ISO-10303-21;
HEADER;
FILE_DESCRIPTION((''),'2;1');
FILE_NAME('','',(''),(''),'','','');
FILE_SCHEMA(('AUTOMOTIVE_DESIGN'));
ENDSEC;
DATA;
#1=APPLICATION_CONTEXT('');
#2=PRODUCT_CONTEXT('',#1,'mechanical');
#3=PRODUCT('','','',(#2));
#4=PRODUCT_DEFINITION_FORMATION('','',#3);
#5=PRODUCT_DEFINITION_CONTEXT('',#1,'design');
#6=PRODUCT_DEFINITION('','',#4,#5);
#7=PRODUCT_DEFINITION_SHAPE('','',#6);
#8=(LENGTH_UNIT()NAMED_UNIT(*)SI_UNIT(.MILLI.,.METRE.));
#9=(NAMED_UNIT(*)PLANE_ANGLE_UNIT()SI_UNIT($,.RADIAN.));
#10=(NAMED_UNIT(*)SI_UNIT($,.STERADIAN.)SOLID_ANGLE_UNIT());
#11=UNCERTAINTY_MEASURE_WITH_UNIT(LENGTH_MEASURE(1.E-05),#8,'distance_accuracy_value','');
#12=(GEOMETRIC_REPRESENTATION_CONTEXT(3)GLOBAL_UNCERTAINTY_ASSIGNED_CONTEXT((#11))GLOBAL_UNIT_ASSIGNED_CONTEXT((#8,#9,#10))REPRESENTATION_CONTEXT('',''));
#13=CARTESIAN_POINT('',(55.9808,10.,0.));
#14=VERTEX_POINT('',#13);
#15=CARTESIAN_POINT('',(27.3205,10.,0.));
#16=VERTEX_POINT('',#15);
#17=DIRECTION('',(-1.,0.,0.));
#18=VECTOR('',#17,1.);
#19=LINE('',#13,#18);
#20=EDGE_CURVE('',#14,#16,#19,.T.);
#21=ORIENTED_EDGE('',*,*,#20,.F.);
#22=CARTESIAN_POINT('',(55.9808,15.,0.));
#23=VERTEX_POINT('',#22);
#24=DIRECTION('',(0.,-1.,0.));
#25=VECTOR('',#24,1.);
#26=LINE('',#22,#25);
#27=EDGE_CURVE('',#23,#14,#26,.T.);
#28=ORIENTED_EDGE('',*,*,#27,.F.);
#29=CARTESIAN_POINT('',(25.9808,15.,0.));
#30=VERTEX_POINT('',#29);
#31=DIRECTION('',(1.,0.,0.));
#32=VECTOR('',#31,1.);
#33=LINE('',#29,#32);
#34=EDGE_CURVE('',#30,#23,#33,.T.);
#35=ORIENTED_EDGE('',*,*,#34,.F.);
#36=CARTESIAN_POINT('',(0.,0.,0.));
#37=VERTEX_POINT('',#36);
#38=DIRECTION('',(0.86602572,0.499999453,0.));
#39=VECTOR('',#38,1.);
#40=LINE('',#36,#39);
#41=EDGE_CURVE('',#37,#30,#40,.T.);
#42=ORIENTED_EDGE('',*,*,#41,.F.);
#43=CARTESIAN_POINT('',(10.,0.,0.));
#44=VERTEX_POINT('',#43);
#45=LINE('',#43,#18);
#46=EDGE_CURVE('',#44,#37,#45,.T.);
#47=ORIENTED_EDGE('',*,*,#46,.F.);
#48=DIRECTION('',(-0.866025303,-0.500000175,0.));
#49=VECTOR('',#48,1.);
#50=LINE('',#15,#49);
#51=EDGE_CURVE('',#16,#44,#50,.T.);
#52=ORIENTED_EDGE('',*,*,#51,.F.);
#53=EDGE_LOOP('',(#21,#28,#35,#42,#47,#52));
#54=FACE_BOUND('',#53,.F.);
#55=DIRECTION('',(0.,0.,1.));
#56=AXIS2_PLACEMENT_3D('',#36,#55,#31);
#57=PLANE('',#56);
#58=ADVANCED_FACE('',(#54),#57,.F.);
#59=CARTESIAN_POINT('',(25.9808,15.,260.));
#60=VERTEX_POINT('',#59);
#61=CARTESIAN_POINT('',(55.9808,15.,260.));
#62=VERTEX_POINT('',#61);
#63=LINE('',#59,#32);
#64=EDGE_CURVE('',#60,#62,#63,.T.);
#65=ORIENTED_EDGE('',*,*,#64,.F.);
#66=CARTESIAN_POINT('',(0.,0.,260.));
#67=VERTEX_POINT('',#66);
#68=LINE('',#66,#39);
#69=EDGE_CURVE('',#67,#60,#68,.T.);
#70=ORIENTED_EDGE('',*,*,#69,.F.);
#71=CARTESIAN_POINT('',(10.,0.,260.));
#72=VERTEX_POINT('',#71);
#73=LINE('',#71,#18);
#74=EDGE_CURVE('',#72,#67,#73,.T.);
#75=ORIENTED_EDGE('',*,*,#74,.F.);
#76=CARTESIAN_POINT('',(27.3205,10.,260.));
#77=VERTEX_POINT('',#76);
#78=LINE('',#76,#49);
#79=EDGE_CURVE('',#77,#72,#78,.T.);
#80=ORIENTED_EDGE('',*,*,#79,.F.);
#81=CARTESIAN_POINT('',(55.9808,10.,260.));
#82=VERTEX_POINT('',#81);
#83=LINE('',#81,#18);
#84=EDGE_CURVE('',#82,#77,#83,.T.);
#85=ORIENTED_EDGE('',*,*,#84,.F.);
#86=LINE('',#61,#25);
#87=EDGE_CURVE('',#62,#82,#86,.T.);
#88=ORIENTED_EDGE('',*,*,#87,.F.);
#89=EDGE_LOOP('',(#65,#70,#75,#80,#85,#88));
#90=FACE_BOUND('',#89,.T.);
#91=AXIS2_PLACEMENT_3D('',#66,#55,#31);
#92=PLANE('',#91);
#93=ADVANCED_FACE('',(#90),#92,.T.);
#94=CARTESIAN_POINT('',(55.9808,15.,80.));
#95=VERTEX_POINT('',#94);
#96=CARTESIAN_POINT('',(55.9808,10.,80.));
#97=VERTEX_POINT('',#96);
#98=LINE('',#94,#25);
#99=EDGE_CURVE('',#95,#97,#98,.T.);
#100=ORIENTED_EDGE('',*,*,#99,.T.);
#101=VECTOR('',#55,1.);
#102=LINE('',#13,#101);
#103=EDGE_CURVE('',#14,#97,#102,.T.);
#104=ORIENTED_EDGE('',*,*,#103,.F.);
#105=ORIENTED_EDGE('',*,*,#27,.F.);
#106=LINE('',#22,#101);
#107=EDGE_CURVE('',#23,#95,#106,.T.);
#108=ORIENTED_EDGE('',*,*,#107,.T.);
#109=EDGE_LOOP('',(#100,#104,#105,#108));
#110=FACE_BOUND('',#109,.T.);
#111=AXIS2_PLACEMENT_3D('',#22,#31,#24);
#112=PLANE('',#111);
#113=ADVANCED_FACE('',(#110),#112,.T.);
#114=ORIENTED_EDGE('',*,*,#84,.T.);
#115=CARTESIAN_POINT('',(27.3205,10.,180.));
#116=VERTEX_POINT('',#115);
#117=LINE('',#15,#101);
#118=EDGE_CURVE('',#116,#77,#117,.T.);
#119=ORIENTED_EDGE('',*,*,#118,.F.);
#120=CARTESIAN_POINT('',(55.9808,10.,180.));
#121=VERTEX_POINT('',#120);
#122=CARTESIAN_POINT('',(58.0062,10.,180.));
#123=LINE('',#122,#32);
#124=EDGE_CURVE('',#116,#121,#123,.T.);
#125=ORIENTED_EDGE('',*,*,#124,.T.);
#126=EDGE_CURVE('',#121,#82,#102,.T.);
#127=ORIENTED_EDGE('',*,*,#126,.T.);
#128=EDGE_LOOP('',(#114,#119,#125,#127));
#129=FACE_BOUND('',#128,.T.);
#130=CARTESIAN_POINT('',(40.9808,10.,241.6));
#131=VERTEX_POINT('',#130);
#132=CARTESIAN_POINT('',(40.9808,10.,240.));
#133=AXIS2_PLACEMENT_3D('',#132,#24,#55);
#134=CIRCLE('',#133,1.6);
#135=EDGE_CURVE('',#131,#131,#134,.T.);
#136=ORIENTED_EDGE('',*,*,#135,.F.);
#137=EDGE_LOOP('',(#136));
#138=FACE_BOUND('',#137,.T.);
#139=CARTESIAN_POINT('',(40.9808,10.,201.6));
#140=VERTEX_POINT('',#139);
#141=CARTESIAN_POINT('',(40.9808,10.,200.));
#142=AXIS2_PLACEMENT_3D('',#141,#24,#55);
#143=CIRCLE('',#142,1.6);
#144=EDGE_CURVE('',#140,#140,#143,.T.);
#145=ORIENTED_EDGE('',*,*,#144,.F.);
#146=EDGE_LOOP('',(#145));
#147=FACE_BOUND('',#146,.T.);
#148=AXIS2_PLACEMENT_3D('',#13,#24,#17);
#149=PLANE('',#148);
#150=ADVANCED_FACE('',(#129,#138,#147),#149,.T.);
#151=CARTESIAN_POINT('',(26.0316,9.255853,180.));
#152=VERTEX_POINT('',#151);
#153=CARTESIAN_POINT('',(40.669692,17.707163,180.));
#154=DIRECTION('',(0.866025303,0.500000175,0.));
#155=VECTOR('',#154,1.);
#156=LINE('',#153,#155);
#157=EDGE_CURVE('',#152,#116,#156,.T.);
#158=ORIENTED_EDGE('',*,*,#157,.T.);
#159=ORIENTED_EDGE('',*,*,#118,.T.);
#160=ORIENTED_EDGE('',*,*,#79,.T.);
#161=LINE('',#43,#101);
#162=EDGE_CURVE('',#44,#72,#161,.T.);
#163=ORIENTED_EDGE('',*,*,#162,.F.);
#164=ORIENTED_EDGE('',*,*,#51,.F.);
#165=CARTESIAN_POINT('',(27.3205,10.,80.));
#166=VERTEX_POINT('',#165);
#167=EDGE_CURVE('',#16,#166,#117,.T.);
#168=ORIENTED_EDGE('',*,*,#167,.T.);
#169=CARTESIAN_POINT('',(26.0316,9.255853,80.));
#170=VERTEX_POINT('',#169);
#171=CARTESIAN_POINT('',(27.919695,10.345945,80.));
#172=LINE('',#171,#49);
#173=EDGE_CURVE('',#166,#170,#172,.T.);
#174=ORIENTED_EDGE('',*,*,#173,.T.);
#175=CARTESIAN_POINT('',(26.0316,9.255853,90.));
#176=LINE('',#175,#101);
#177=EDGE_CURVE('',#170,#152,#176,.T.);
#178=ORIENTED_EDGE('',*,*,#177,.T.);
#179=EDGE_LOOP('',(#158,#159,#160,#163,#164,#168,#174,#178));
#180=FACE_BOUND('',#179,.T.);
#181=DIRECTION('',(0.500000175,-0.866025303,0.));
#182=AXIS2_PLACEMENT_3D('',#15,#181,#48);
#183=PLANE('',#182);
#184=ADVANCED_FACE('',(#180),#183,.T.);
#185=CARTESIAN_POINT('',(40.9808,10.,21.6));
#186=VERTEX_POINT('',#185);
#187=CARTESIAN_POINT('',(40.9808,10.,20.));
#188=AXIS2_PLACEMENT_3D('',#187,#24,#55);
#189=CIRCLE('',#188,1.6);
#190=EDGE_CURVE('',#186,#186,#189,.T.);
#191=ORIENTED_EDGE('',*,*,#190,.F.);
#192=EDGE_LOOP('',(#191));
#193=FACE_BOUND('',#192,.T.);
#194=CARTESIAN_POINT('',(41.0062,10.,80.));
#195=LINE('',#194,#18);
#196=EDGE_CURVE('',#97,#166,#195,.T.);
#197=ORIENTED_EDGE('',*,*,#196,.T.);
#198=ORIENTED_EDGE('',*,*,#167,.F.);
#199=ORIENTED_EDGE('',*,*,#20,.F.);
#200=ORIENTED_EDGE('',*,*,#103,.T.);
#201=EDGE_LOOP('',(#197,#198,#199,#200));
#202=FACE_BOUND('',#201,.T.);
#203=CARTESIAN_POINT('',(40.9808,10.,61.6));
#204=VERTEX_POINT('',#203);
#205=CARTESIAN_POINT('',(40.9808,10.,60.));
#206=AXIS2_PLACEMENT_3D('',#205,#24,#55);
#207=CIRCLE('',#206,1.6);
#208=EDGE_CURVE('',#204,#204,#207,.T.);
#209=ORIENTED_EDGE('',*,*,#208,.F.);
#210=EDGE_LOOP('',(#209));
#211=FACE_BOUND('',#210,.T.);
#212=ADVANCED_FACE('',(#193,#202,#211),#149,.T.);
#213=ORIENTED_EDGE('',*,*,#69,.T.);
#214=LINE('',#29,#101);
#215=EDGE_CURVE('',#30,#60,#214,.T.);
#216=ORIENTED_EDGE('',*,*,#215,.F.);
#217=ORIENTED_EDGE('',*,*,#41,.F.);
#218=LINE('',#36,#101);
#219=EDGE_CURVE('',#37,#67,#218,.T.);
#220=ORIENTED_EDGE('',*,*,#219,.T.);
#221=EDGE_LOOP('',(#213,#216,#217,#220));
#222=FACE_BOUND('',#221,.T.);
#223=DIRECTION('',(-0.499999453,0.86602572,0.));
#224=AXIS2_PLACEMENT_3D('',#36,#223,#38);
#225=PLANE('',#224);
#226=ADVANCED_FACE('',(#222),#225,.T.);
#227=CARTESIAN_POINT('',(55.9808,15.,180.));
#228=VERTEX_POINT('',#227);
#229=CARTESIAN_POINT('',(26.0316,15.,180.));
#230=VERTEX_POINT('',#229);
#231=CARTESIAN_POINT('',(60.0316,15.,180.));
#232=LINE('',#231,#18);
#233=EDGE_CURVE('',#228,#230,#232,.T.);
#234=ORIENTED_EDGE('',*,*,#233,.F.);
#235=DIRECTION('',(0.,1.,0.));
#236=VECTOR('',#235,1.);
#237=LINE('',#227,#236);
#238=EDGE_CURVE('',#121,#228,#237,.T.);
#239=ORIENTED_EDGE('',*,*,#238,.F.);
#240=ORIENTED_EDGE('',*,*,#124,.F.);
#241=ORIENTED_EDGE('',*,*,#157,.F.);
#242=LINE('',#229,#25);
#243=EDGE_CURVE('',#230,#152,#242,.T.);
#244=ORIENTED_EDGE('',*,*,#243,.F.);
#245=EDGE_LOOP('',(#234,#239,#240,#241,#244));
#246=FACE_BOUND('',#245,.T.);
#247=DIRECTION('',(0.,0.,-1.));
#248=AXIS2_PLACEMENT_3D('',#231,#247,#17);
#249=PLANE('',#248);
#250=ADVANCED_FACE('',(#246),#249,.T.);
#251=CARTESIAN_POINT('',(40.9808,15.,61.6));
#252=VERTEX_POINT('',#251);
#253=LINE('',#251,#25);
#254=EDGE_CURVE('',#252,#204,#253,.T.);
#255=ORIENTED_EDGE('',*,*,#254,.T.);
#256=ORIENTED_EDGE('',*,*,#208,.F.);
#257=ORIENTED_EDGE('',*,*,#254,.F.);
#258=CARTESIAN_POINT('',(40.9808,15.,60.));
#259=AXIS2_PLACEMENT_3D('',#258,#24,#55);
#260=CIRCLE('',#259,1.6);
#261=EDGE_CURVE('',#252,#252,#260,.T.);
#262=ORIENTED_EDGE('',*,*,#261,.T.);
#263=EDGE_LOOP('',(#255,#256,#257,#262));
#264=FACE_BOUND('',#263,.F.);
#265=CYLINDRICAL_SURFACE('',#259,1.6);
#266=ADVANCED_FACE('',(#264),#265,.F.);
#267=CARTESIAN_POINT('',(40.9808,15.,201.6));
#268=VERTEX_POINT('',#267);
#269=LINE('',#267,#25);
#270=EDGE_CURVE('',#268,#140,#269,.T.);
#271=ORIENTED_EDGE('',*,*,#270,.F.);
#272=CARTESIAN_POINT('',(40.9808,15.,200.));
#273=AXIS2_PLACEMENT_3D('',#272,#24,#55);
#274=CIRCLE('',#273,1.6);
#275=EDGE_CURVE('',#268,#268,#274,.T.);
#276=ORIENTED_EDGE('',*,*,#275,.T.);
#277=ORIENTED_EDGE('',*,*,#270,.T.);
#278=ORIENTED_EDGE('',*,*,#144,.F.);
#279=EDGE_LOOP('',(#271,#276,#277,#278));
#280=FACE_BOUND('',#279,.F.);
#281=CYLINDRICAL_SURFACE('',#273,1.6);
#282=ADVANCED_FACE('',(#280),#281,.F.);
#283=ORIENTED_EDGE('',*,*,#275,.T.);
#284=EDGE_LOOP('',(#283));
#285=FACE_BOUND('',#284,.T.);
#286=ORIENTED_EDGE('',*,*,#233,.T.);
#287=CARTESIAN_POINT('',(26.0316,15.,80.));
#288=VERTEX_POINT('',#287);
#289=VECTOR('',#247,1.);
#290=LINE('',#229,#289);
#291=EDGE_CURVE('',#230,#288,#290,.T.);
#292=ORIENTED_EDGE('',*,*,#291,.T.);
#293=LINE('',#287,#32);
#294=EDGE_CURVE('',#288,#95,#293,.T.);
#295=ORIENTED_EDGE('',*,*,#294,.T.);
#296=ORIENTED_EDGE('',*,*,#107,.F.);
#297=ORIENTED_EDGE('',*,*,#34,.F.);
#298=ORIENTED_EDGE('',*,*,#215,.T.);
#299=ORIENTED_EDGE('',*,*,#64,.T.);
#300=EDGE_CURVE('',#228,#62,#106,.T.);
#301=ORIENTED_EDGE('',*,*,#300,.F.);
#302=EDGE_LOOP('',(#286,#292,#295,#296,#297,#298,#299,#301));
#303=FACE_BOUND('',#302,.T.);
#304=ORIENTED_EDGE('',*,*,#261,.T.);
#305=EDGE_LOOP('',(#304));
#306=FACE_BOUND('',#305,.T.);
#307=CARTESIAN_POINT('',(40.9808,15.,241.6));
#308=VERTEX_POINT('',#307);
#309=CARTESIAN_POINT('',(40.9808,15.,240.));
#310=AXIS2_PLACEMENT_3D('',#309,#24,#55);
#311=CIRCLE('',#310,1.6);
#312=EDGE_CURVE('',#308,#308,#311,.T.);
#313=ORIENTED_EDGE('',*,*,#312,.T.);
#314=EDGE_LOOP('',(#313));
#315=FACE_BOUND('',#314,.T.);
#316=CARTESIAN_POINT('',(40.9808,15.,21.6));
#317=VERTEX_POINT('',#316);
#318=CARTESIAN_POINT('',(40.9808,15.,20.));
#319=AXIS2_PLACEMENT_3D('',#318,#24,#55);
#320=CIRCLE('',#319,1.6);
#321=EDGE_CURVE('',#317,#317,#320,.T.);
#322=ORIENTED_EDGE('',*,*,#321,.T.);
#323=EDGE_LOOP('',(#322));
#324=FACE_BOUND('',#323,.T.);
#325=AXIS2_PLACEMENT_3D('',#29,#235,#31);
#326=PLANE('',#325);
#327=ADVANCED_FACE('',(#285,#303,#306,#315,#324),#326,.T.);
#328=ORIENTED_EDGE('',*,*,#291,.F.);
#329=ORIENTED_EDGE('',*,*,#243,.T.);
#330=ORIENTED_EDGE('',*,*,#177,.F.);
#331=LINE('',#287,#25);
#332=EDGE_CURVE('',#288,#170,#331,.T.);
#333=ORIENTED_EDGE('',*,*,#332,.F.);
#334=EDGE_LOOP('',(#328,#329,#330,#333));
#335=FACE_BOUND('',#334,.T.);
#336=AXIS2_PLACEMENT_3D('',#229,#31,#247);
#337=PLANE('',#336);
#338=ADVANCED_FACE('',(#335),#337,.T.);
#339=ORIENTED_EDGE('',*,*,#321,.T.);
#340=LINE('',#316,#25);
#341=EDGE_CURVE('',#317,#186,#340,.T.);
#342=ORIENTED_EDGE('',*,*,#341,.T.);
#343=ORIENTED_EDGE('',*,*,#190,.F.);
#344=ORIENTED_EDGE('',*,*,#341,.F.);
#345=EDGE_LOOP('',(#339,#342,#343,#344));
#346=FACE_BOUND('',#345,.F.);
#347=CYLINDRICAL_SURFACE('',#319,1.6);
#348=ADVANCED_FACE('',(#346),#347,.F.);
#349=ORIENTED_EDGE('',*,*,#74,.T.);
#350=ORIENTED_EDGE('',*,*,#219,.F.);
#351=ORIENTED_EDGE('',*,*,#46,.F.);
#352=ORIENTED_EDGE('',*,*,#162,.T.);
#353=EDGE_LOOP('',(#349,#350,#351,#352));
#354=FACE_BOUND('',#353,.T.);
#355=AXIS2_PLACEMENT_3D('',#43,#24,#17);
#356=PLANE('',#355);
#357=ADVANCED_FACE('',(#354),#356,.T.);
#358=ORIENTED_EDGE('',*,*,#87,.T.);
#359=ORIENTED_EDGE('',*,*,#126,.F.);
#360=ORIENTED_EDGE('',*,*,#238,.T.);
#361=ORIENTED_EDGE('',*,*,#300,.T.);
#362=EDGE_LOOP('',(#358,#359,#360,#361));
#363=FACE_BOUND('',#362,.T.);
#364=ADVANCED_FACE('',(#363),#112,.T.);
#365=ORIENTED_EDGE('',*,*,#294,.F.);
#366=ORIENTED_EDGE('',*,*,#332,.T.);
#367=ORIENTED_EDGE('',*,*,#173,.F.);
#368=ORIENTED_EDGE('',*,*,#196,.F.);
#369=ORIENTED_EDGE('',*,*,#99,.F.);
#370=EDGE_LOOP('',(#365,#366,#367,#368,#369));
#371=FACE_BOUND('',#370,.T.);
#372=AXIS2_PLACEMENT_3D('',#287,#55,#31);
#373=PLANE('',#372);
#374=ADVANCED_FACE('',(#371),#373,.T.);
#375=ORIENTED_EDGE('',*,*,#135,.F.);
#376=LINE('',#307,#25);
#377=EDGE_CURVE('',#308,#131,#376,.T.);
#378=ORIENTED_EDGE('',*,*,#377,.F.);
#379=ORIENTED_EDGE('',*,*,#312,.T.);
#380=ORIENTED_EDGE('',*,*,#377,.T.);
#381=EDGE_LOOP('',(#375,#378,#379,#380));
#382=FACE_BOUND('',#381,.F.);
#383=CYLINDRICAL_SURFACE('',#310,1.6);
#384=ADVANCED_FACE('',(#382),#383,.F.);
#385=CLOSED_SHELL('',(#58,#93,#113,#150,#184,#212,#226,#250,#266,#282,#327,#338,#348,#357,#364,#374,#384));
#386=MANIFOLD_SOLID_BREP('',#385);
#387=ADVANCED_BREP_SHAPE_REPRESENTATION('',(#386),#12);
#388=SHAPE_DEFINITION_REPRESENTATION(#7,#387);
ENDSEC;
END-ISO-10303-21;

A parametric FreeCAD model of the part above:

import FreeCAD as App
import Part
import Sketcher
Q = App.Units.Quantity

doc = App.newDocument("Part")
body = doc.addObject("PartDesign::Body", "Body")

sketch1 = body.newObject("Sketcher::SketchObject", "Sketch")
sketch1.AttachmentSupport = (doc.getObject("XY_Plane"), [""])
sketch1.MapMode = "FlatFace"
sketch1.addGeometry([
    Part.LineSegment(App.Vector(26, 15, 0), App.Vector(0, 0, 0)),
    Part.LineSegment(App.Vector(0, 0, 0), App.Vector(10, 0, 0)),
    Part.LineSegment(App.Vector(10, 0, 0), App.Vector(27, 10, 0)),
    Part.LineSegment(App.Vector(27, 10, 0), App.Vector(56, 10, 0)),
    Part.LineSegment(App.Vector(56, 10, 0), App.Vector(56, 15, 0)),
    Part.LineSegment(App.Vector(56, 15, 0), App.Vector(26, 15, 0)),
], False)
sketch1.addConstraint([
    Sketcher.Constraint("Coincident", 0, 2, 1, 1),
    Sketcher.Constraint("Coincident", 1, 2, 2, 1),
    Sketcher.Constraint("Coincident", 2, 2, 3, 1),
    Sketcher.Constraint("Coincident", 3, 2, 4, 1),
    Sketcher.Constraint("Coincident", 4, 2, 5, 1),
    Sketcher.Constraint("Coincident", 5, 2, 0, 1),
    Sketcher.Constraint("Horizontal", 1),
    Sketcher.Constraint("Horizontal", 3),
    Sketcher.Constraint("Vertical", 4),
    Sketcher.Constraint("Horizontal", 5),
    Sketcher.Constraint("Coincident", 0, 2, -1, 1),
    Sketcher.Constraint("Parallel", 0, 2),
    Sketcher.Constraint("DistanceX", 5, 2, 5, 1, Q("30 mm")),
    Sketcher.Constraint("DistanceY", 4, 1, 4, 2, Q("5 mm")),
    Sketcher.Constraint("Angle", 2, Q("30 deg")),
    Sketcher.Constraint("Distance", 0, Q("30 mm")),
    Sketcher.Constraint("DistanceX", 1, 1, 1, 2, Q("10 mm")),
])
pad1 = body.newObject("PartDesign::Pad", "Pad")
pad1.Profile = sketch1
pad1.Length = 260

sketch2 = body.newObject("Sketcher::SketchObject", "Sketch001")
sketch2.AttachmentSupport = (doc.getObject("XZ_Plane"), [""])
sketch2.MapMode = "FlatFace"
sketch2.AttachmentOffset = App.Placement(App.Vector(0, 0, -15), App.Rotation())
sketch2.addGeometry([
    Part.LineSegment(App.Vector(60, 80, 0), App.Vector(26, 80, 0)),
    Part.LineSegment(App.Vector(26, 80, 0), App.Vector(26, 180, 0)),
    Part.LineSegment(App.Vector(26, 180, 0), App.Vector(60, 180, 0)),
    Part.LineSegment(App.Vector(60, 180, 0), App.Vector(60, 80, 0)),
], False)
sketch2.addConstraint([
    Sketcher.Constraint("Coincident", 0, 2, 1, 1),
    Sketcher.Constraint("Coincident", 1, 2, 2, 1),
    Sketcher.Constraint("Coincident", 2, 2, 3, 1),
    Sketcher.Constraint("Coincident", 3, 2, 0, 1),
    Sketcher.Constraint("Horizontal", 0),
    Sketcher.Constraint("Vertical", 1),
    Sketcher.Constraint("Horizontal", 2),
    Sketcher.Constraint("Vertical", 3),
    Sketcher.Constraint("DistanceX", 0, 2, 0, 1, Q("34 mm")),
    Sketcher.Constraint("DistanceY", -1, 1, 0, 2, Q("80 mm")),
    Sketcher.Constraint("DistanceY", 1, 1, 1, 2, Q("100 mm")),
    Sketcher.Constraint("DistanceX", -1, 1, 0, 2, Q("26.0316 mm")),
])
pocket1 = body.newObject("PartDesign::Pocket", "Pocket")
pocket1.Profile = sketch2
pocket1.Length = 300
pocket1.Reversed = True

sketch3 = body.newObject("Sketcher::SketchObject", "Sketch002")
sketch3.AttachmentSupport = (doc.getObject("XZ_Plane"), [""])
sketch3.MapMode = "FlatFace"
sketch3.AttachmentOffset = App.Placement(App.Vector(0, 0, -15), App.Rotation())
sketch3.addGeometry([
    Part.Circle(App.Vector(41, 20, 0), App.Vector(0, 0, 1), 1.6),
    Part.Circle(App.Vector(41, 200, 0), App.Vector(0, 0, 1), 1.6),
    Part.Circle(App.Vector(41, 60, 0), App.Vector(0, 0, 1), 1.6),
    Part.Circle(App.Vector(41, 240, 0), App.Vector(0, 0, 1), 1.6),
], False)
sketch3.addConstraint([
    Sketcher.Constraint("Equal", 0, 1),
    Sketcher.Constraint("Equal", 1, 2),
    Sketcher.Constraint("Equal", 2, 3),
    Sketcher.Constraint("Vertical", 0, 3, 1, 3),
    Sketcher.Constraint("Vertical", 1, 3, 2, 3),
    Sketcher.Constraint("Vertical", 2, 3, 3, 3),
    Sketcher.Constraint("Diameter", 0, Q("3.2 mm")),
    Sketcher.Constraint("DistanceY", -1, 1, 0, 3, Q("20 mm")),
    Sketcher.Constraint("DistanceY", -1, 1, 1, 3, Q("200 mm")),
    Sketcher.Constraint("DistanceY", -1, 1, 2, 3, Q("60 mm")),
    Sketcher.Constraint("DistanceY", -1, 1, 3, 3, Q("240 mm")),
    Sketcher.Constraint("DistanceX", -1, 1, 0, 3, Q("40.9808 mm")),
])
doc.recompute()
hole = body.newObject("PartDesign::Hole", "Hole")
hole.Profile = sketch3
hole.ThreadType = "None"
hole.Diameter = 3.2
hole.DepthType = "Dimension"
hole.Depth = 10
hole.DrillPoint = "Angled"
hole.DrillPointAngle = 118
hole.Reversed = True

doc.recompute()
